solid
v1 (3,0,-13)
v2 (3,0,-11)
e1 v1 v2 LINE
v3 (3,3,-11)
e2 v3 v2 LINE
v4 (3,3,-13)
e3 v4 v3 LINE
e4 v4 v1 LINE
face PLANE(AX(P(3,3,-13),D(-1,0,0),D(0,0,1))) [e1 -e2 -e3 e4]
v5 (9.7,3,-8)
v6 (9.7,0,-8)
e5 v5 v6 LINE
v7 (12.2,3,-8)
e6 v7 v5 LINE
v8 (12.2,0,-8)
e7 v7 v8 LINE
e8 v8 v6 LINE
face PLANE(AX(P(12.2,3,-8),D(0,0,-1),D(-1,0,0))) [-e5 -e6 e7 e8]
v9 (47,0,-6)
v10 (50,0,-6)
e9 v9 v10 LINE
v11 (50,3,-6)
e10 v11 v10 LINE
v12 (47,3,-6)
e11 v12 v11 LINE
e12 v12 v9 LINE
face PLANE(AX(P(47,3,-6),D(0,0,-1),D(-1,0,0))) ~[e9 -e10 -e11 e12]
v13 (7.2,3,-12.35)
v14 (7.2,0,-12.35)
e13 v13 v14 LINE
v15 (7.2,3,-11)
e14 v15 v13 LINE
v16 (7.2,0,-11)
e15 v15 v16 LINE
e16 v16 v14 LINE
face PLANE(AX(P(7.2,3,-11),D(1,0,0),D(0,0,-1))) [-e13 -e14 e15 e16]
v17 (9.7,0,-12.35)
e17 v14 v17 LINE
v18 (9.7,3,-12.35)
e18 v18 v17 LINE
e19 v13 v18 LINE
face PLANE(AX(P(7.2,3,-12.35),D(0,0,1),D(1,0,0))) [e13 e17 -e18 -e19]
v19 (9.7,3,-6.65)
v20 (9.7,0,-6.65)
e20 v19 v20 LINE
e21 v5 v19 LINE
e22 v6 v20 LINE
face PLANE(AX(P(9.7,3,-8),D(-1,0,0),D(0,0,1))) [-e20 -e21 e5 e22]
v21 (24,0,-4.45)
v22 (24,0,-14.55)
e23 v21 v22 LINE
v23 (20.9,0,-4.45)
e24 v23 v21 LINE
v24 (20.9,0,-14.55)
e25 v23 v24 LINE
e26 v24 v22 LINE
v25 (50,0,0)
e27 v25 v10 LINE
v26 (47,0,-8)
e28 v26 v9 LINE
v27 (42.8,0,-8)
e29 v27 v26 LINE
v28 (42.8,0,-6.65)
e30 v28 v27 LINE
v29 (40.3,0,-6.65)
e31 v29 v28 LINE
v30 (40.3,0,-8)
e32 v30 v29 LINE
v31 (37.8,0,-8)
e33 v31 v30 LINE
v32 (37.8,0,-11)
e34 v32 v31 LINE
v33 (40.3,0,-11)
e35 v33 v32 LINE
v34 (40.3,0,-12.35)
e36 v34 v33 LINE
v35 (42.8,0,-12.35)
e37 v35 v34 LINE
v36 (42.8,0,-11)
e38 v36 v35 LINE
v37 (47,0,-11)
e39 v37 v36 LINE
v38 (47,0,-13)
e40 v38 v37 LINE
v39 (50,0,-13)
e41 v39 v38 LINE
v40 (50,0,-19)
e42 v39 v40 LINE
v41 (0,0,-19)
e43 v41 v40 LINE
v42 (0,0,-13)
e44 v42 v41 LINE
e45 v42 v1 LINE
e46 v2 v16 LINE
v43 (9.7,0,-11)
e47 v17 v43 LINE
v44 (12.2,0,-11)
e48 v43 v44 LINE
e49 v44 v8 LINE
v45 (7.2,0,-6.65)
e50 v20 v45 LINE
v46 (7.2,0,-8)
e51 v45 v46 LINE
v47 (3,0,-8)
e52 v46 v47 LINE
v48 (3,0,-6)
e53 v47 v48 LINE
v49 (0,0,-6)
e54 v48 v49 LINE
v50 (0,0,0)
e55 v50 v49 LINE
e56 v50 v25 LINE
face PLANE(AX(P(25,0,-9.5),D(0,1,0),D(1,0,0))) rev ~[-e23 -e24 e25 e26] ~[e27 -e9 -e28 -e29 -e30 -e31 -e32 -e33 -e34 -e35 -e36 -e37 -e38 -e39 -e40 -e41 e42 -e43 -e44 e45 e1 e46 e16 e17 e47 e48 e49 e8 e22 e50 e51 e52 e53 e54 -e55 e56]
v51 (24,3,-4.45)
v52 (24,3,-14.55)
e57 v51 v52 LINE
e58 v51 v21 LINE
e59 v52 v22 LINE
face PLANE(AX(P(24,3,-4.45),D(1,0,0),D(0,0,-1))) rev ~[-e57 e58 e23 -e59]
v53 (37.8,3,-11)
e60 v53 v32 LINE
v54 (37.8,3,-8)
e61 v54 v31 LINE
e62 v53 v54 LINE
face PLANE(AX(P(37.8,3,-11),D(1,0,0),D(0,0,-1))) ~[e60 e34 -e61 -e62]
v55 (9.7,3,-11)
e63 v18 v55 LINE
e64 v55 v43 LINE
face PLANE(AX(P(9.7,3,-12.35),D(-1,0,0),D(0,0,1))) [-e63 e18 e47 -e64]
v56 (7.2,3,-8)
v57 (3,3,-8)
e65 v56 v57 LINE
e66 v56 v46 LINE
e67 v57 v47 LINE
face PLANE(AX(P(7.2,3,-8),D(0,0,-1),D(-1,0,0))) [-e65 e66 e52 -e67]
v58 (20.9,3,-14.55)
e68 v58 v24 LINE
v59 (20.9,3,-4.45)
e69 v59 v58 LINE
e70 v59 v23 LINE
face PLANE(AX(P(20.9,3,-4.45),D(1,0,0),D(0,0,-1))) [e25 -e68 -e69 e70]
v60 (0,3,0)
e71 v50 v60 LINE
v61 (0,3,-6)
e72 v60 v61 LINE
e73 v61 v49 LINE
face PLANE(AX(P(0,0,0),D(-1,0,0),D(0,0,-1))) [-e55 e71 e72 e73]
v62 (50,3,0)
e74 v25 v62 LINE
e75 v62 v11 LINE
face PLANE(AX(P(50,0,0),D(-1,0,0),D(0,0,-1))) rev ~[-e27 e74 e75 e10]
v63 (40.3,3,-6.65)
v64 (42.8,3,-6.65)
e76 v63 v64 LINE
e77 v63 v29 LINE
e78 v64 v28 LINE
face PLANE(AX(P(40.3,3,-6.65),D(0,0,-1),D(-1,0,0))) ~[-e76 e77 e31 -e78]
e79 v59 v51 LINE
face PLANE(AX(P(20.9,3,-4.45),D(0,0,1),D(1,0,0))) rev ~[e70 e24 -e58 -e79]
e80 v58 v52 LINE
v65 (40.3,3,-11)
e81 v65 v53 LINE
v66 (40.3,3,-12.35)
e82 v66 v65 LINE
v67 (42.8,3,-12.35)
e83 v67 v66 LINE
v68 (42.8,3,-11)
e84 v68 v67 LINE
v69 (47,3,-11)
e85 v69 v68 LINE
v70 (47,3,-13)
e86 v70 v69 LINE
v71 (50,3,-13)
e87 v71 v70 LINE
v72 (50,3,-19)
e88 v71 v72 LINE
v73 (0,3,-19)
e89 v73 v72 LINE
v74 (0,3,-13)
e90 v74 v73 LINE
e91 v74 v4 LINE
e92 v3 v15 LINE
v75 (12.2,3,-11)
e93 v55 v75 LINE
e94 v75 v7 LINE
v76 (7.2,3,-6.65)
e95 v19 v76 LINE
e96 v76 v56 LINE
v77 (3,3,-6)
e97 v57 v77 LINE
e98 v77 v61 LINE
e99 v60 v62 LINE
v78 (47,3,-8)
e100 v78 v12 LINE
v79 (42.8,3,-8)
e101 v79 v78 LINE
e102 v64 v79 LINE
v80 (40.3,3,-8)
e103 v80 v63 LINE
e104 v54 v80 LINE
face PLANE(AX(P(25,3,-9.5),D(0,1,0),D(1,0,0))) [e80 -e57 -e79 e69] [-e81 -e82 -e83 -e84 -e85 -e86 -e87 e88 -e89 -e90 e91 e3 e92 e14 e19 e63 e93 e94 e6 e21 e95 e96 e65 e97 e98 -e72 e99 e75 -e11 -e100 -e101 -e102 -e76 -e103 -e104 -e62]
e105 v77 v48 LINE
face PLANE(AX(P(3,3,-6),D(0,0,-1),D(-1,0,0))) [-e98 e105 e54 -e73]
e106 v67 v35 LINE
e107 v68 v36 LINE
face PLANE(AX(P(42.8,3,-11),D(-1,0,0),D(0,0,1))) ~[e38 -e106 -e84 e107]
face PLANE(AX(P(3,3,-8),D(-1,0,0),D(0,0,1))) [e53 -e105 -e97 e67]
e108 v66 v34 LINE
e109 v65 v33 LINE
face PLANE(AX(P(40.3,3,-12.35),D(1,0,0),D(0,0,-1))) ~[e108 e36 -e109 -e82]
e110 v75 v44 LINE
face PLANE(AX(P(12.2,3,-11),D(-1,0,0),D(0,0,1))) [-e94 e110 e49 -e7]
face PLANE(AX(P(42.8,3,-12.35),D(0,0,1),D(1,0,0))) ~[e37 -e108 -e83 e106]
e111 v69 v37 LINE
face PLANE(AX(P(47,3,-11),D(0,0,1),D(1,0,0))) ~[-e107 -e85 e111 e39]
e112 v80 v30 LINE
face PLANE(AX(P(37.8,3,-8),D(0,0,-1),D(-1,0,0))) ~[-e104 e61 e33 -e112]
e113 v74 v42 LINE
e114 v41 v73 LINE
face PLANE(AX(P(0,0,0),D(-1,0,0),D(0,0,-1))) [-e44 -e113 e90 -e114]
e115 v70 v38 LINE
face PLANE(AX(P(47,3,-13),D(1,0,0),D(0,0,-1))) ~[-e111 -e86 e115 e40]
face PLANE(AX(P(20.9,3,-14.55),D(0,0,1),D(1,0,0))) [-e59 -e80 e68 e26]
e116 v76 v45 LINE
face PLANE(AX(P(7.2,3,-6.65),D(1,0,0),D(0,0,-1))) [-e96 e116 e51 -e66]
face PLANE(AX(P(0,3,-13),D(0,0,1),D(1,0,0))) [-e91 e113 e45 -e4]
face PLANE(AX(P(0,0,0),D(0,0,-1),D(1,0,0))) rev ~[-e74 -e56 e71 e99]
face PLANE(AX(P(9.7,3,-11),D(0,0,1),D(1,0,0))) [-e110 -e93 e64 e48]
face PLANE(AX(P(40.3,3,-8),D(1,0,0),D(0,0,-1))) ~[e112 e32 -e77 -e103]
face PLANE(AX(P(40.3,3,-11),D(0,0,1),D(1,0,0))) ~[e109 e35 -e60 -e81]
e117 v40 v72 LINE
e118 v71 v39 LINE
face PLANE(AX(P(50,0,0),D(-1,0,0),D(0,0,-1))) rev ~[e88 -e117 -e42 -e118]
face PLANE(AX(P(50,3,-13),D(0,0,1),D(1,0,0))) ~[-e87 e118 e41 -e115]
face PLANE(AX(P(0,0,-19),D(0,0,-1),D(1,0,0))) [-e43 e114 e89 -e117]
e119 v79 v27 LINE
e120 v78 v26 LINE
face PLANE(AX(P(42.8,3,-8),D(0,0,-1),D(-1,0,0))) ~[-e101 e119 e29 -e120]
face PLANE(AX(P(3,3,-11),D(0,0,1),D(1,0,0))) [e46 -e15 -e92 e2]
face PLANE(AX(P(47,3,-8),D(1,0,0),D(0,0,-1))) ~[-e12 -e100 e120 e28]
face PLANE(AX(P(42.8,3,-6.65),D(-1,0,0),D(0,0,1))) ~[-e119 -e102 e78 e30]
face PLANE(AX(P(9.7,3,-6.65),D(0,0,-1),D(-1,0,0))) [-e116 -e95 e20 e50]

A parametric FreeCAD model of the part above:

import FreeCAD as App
import Part
import Sketcher


def add_polygon(sketch, points):
    """Adds a closed chain of lines whose ends are joined by coincident constraints."""
    first, n = sketch.GeometryCount, len(points)
    for a, b in zip(points, points[1:] + points[:1]):
        sketch.addGeometry(Part.LineSegment(App.Vector(*a, 0), App.Vector(*b, 0)), False)
    for i in range(n):
        sketch.addConstraint(Sketcher.Constraint("Coincident", first + i, 2, first + (i + 1) % n, 1))

doc = App.newDocument("Part")
body = doc.addObject("PartDesign::Body", "Body")

# Sketch on XZ plane
sketch1 = body.newObject("Sketcher::SketchObject", "Sketch")
sketch1.AttachmentSupport = (doc.getObject("XZ_Plane"), [""])
sketch1.MapMode = "FlatFace"
add_polygon(sketch1, [(0, -19), (0, 0), (50, 0), (50, -19)])  # lines 0-3
sketch1.addConstraint([
    Sketcher.Constraint("Vertical", 0),
    Sketcher.Constraint("Horizontal", 1),
    Sketcher.Constraint("Vertical", 2),
    Sketcher.Constraint("Horizontal", 3),
    Sketcher.Constraint("Coincident", 0, 2, -1, 1),
    Sketcher.Constraint("DistanceX", 1, 1, 1, 2, 50.0),
    Sketcher.Constraint("DistanceY", 0, 1, 0, 2, 19.0),
])
pad1 = body.newObject("PartDesign::Pad", "Pad")
pad1.Profile = sketch1
pad1.Length = 3
pad1.Reversed = True

# Sketch on XZ plane
sketch2 = body.newObject("Sketcher::SketchObject", "Sketch001")
sketch2.AttachmentSupport = (doc.getObject("XZ_Plane"), [""])
sketch2.MapMode = "FlatFace"
sketch2.AttachmentOffset = App.Placement(App.Vector(0, 0, -3), App.Rotation())
add_polygon(sketch2, [(3, -13), (0, -13), (0, -6), (3, -6), (3, -8), (7.2, -8), (7.2, -6.65), (9.7, -6.65), (9.7, -8), (12.2, -8), (12.2, -11), (9.7, -11), (9.7, -12.35), (7.2, -12.35), (7.2, -11), (3, -11)])  # lines 0-15
sketch2.addConstraint([
    Sketcher.Constraint("Horizontal", 0),
    Sketcher.Constraint("Vertical", 1),
    Sketcher.Constraint("Horizontal", 2),
    Sketcher.Constraint("Vertical", 3),
    Sketcher.Constraint("Horizontal", 4),
    Sketcher.Constraint("Vertical", 5),
    Sketcher.Constraint("Horizontal", 6),
    Sketcher.Constraint("Vertical", 7),
    Sketcher.Constraint("Horizontal", 8),
    Sketcher.Constraint("Vertical", 9),
    Sketcher.Constraint("Horizontal", 10),
    Sketcher.Constraint("Vertical", 11),
    Sketcher.Constraint("Horizontal", 12),
    Sketcher.Constraint("Vertical", 13),
    Sketcher.Constraint("Horizontal", 14),
    Sketcher.Constraint("Vertical", 15),
    Sketcher.Constraint("PointOnObject", 0, 2, -2),
    Sketcher.Constraint("Horizontal", 4, 2, 7, 2),
    Sketcher.Constraint("Horizontal", 10, 2, 13, 2),
    Sketcher.Constraint("Vertical", 7, 2, 10, 2),
    Sketcher.Constraint("Vertical", 5, 2, 12, 2),
    Sketcher.Constraint("Vertical", 3, 2, 14, 2),
    Sketcher.Constraint("Equal", 6, 8),
    Sketcher.Constraint("Equal", 2, 9),
    Sketcher.Constraint("Equal", 7, 11),
    Sketcher.Constraint("Equal", 3, 15),
    Sketcher.Constraint("DistanceX", 0, 2, 0, 1, 3.0),
    Sketcher.Constraint("DistanceY", 1, 1, 1, 2, 7.0),
    Sketcher.Constraint("DistanceX", 4, 1, 4, 2, 4.2),
    Sketcher.Constraint("DistanceX", 6, 1, 6, 2, 2.5),
    Sketcher.Constraint("DistanceY", 0, 2, -1, 1, 13.0),
    Sketcher.Constraint("DistanceY", 5, 1, 5, 2, 1.35),
])
pocket1 = body.newObject("PartDesign::Pocket", "Pocket")
pocket1.Profile = sketch2
pocket1.Type = "ThroughAll"
pocket1.Reversed = True
doc.recompute()

datumplane = body.newObject("PartDesign::Plane", "DatumPlane")
datumplane.AttachmentSupport = (doc.getObject("YZ_Plane"), [""])
datumplane.MapMode = "FlatFace"
datumplane.AttachmentOffset = App.Placement(App.Vector(0, 0, 25), App.Rotation())
mirrored = body.newObject("PartDesign::Mirrored", "Mirrored")
mirrored.Originals = [pocket1]
mirrored.MirrorPlane = (datumplane, [""])
body.Tip = mirrored

# Sketch on XZ plane
sketch3 = body.newObject("Sketcher::SketchObject", "Sketch002")
sketch3.AttachmentSupport = (doc.getObject("XZ_Plane"), [""])
sketch3.MapMode = "FlatFace"
sketch3.AttachmentOffset = App.Placement(App.Vector(0, 0, -3), App.Rotation())
add_polygon(sketch3, [(20.9, -14.55), (20.9, -4.45), (24, -4.45), (24, -14.55)])  # lines 0-3
sketch3.addConstraint([
    Sketcher.Constraint("Vertical", 0),
    Sketcher.Constraint("Horizontal", 1),
    Sketcher.Constraint("Vertical", 2),
    Sketcher.Constraint("Horizontal", 3),
    Sketcher.Constraint("DistanceX", 1, 1, 1, 2, 3.1),
    Sketcher.Constraint("DistanceY", 0, 1, 0, 2, 10.1),
    Sketcher.Constraint("DistanceX", -1, 1, 1, 2, 24.0),
    Sketcher.Constraint("DistanceY", 0, 2, -1, 1, 4.45),
])
pocket2 = body.newObject("PartDesign::Pocket", "Pocket001")
pocket2.Profile = sketch3
pocket2.Type = "ThroughAll"
pocket2.Reversed = True

doc.recompute()
